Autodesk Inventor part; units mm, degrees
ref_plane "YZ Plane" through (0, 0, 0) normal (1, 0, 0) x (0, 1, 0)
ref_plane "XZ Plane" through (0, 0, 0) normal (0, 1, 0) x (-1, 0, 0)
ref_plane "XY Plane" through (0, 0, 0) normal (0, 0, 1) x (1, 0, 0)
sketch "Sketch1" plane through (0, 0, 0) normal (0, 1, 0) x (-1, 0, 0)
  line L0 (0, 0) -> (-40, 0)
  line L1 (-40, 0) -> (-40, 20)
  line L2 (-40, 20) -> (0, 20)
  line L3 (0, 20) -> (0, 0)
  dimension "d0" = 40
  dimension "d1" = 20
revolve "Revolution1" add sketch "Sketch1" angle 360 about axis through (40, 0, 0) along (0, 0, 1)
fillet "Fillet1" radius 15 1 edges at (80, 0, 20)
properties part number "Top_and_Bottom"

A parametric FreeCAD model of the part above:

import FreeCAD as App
import Part
import Sketcher

V = App.Vector
Q = App.Units.Quantity


def edges_at(feature, points):
    """Names of the edges that pass closest to the given points."""
    edges = feature.Shape.Edges
    near = lambda p: min(range(len(edges)), key=lambda i: edges[i].distToShape(Part.Vertex(*p))[0])
    return sorted({f"Edge{near(p) + 1}" for p in points})


def add_polygon(sketch, points):
    """Adds a closed chain of lines whose ends are joined by coincident constraints."""
    first, n = sketch.GeometryCount, len(points)
    for a, b in zip(points, points[1:] + points[:1]):
        sketch.addGeometry(Part.LineSegment(App.Vector(*a, 0), App.Vector(*b, 0)), False)
    for i in range(n):
        sketch.addConstraint(Sketcher.Constraint("Coincident", first + i, 2, first + (i + 1) % n, 1))

doc = App.newDocument("Part")
params = doc.addObject("Spreadsheet::Sheet", "Params")
for row, (alias, value) in enumerate([
    ("sketch1_width", "40 mm"),
    ("sketch1_height", "20 mm"),
    ("revolution_angle", "360 deg"),
    ("fillet_radius", "15 mm"),
], start=1):
    params.set(f"A{row}", alias)
    params.set(f"B{row}", "=" + value)
    params.setAlias(f"B{row}", alias)

body = doc.addObject("PartDesign::Body", "Body")

# Sketch on XZ plane
sketch1 = body.newObject("Sketcher::SketchObject", "Sketch")
sketch1.AttachmentSupport = (doc.getObject("XZ_Plane"), [""])
sketch1.MapMode = "FlatFace"
add_polygon(sketch1, [(40, 0), (0, 0), (0, 20), (40, 20)])  # lines 0-3
sketch1.addGeometry(Part.LineSegment(V(40, 0, 0), V(40, 20, 0)), True)  # axis
sketch1.addConstraint(Sketcher.Constraint("Horizontal", 0))
sketch1.addConstraint(Sketcher.Constraint("Vertical", 1))
sketch1.addConstraint(Sketcher.Constraint("Horizontal", 2))
sketch1.addConstraint(Sketcher.Constraint("Vertical", 3))
sketch1.addConstraint(Sketcher.Constraint("Vertical", 4))
sketch1.addConstraint(Sketcher.Constraint("Coincident", 0, 2, -1, 1))
sketch1.addConstraint(Sketcher.Constraint("Coincident", 4, 1, 3, 2))
sketch1.addConstraint(Sketcher.Constraint("Horizontal", 1, 2, 4, 2))
sketch1.addConstraint(Sketcher.Constraint("DistanceX", 0, 2, 0, 1, Q("40 mm")))
sketch1.addConstraint(Sketcher.Constraint("DistanceY", 1, 1, 1, 2, Q("20 mm")))
sketch1.setExpression("Constraints[12]", "Params.sketch1_width")
sketch1.setExpression("Constraints[13]", "Params.sketch1_height")
revolution = body.newObject("PartDesign::Revolution", "Revolution")
revolution.Profile = sketch1
revolution.ReferenceAxis = (sketch1, ["Axis0"])
revolution.setExpression("Angle", "Params.revolution_angle")
doc.recompute()

fillet = body.newObject("PartDesign::Fillet", "Fillet")
fillet.Base = (revolution, edges_at(revolution, [(80, 0, 20)]))
fillet.setExpression("Radius", "Params.fillet_radius")

doc.recompute()
